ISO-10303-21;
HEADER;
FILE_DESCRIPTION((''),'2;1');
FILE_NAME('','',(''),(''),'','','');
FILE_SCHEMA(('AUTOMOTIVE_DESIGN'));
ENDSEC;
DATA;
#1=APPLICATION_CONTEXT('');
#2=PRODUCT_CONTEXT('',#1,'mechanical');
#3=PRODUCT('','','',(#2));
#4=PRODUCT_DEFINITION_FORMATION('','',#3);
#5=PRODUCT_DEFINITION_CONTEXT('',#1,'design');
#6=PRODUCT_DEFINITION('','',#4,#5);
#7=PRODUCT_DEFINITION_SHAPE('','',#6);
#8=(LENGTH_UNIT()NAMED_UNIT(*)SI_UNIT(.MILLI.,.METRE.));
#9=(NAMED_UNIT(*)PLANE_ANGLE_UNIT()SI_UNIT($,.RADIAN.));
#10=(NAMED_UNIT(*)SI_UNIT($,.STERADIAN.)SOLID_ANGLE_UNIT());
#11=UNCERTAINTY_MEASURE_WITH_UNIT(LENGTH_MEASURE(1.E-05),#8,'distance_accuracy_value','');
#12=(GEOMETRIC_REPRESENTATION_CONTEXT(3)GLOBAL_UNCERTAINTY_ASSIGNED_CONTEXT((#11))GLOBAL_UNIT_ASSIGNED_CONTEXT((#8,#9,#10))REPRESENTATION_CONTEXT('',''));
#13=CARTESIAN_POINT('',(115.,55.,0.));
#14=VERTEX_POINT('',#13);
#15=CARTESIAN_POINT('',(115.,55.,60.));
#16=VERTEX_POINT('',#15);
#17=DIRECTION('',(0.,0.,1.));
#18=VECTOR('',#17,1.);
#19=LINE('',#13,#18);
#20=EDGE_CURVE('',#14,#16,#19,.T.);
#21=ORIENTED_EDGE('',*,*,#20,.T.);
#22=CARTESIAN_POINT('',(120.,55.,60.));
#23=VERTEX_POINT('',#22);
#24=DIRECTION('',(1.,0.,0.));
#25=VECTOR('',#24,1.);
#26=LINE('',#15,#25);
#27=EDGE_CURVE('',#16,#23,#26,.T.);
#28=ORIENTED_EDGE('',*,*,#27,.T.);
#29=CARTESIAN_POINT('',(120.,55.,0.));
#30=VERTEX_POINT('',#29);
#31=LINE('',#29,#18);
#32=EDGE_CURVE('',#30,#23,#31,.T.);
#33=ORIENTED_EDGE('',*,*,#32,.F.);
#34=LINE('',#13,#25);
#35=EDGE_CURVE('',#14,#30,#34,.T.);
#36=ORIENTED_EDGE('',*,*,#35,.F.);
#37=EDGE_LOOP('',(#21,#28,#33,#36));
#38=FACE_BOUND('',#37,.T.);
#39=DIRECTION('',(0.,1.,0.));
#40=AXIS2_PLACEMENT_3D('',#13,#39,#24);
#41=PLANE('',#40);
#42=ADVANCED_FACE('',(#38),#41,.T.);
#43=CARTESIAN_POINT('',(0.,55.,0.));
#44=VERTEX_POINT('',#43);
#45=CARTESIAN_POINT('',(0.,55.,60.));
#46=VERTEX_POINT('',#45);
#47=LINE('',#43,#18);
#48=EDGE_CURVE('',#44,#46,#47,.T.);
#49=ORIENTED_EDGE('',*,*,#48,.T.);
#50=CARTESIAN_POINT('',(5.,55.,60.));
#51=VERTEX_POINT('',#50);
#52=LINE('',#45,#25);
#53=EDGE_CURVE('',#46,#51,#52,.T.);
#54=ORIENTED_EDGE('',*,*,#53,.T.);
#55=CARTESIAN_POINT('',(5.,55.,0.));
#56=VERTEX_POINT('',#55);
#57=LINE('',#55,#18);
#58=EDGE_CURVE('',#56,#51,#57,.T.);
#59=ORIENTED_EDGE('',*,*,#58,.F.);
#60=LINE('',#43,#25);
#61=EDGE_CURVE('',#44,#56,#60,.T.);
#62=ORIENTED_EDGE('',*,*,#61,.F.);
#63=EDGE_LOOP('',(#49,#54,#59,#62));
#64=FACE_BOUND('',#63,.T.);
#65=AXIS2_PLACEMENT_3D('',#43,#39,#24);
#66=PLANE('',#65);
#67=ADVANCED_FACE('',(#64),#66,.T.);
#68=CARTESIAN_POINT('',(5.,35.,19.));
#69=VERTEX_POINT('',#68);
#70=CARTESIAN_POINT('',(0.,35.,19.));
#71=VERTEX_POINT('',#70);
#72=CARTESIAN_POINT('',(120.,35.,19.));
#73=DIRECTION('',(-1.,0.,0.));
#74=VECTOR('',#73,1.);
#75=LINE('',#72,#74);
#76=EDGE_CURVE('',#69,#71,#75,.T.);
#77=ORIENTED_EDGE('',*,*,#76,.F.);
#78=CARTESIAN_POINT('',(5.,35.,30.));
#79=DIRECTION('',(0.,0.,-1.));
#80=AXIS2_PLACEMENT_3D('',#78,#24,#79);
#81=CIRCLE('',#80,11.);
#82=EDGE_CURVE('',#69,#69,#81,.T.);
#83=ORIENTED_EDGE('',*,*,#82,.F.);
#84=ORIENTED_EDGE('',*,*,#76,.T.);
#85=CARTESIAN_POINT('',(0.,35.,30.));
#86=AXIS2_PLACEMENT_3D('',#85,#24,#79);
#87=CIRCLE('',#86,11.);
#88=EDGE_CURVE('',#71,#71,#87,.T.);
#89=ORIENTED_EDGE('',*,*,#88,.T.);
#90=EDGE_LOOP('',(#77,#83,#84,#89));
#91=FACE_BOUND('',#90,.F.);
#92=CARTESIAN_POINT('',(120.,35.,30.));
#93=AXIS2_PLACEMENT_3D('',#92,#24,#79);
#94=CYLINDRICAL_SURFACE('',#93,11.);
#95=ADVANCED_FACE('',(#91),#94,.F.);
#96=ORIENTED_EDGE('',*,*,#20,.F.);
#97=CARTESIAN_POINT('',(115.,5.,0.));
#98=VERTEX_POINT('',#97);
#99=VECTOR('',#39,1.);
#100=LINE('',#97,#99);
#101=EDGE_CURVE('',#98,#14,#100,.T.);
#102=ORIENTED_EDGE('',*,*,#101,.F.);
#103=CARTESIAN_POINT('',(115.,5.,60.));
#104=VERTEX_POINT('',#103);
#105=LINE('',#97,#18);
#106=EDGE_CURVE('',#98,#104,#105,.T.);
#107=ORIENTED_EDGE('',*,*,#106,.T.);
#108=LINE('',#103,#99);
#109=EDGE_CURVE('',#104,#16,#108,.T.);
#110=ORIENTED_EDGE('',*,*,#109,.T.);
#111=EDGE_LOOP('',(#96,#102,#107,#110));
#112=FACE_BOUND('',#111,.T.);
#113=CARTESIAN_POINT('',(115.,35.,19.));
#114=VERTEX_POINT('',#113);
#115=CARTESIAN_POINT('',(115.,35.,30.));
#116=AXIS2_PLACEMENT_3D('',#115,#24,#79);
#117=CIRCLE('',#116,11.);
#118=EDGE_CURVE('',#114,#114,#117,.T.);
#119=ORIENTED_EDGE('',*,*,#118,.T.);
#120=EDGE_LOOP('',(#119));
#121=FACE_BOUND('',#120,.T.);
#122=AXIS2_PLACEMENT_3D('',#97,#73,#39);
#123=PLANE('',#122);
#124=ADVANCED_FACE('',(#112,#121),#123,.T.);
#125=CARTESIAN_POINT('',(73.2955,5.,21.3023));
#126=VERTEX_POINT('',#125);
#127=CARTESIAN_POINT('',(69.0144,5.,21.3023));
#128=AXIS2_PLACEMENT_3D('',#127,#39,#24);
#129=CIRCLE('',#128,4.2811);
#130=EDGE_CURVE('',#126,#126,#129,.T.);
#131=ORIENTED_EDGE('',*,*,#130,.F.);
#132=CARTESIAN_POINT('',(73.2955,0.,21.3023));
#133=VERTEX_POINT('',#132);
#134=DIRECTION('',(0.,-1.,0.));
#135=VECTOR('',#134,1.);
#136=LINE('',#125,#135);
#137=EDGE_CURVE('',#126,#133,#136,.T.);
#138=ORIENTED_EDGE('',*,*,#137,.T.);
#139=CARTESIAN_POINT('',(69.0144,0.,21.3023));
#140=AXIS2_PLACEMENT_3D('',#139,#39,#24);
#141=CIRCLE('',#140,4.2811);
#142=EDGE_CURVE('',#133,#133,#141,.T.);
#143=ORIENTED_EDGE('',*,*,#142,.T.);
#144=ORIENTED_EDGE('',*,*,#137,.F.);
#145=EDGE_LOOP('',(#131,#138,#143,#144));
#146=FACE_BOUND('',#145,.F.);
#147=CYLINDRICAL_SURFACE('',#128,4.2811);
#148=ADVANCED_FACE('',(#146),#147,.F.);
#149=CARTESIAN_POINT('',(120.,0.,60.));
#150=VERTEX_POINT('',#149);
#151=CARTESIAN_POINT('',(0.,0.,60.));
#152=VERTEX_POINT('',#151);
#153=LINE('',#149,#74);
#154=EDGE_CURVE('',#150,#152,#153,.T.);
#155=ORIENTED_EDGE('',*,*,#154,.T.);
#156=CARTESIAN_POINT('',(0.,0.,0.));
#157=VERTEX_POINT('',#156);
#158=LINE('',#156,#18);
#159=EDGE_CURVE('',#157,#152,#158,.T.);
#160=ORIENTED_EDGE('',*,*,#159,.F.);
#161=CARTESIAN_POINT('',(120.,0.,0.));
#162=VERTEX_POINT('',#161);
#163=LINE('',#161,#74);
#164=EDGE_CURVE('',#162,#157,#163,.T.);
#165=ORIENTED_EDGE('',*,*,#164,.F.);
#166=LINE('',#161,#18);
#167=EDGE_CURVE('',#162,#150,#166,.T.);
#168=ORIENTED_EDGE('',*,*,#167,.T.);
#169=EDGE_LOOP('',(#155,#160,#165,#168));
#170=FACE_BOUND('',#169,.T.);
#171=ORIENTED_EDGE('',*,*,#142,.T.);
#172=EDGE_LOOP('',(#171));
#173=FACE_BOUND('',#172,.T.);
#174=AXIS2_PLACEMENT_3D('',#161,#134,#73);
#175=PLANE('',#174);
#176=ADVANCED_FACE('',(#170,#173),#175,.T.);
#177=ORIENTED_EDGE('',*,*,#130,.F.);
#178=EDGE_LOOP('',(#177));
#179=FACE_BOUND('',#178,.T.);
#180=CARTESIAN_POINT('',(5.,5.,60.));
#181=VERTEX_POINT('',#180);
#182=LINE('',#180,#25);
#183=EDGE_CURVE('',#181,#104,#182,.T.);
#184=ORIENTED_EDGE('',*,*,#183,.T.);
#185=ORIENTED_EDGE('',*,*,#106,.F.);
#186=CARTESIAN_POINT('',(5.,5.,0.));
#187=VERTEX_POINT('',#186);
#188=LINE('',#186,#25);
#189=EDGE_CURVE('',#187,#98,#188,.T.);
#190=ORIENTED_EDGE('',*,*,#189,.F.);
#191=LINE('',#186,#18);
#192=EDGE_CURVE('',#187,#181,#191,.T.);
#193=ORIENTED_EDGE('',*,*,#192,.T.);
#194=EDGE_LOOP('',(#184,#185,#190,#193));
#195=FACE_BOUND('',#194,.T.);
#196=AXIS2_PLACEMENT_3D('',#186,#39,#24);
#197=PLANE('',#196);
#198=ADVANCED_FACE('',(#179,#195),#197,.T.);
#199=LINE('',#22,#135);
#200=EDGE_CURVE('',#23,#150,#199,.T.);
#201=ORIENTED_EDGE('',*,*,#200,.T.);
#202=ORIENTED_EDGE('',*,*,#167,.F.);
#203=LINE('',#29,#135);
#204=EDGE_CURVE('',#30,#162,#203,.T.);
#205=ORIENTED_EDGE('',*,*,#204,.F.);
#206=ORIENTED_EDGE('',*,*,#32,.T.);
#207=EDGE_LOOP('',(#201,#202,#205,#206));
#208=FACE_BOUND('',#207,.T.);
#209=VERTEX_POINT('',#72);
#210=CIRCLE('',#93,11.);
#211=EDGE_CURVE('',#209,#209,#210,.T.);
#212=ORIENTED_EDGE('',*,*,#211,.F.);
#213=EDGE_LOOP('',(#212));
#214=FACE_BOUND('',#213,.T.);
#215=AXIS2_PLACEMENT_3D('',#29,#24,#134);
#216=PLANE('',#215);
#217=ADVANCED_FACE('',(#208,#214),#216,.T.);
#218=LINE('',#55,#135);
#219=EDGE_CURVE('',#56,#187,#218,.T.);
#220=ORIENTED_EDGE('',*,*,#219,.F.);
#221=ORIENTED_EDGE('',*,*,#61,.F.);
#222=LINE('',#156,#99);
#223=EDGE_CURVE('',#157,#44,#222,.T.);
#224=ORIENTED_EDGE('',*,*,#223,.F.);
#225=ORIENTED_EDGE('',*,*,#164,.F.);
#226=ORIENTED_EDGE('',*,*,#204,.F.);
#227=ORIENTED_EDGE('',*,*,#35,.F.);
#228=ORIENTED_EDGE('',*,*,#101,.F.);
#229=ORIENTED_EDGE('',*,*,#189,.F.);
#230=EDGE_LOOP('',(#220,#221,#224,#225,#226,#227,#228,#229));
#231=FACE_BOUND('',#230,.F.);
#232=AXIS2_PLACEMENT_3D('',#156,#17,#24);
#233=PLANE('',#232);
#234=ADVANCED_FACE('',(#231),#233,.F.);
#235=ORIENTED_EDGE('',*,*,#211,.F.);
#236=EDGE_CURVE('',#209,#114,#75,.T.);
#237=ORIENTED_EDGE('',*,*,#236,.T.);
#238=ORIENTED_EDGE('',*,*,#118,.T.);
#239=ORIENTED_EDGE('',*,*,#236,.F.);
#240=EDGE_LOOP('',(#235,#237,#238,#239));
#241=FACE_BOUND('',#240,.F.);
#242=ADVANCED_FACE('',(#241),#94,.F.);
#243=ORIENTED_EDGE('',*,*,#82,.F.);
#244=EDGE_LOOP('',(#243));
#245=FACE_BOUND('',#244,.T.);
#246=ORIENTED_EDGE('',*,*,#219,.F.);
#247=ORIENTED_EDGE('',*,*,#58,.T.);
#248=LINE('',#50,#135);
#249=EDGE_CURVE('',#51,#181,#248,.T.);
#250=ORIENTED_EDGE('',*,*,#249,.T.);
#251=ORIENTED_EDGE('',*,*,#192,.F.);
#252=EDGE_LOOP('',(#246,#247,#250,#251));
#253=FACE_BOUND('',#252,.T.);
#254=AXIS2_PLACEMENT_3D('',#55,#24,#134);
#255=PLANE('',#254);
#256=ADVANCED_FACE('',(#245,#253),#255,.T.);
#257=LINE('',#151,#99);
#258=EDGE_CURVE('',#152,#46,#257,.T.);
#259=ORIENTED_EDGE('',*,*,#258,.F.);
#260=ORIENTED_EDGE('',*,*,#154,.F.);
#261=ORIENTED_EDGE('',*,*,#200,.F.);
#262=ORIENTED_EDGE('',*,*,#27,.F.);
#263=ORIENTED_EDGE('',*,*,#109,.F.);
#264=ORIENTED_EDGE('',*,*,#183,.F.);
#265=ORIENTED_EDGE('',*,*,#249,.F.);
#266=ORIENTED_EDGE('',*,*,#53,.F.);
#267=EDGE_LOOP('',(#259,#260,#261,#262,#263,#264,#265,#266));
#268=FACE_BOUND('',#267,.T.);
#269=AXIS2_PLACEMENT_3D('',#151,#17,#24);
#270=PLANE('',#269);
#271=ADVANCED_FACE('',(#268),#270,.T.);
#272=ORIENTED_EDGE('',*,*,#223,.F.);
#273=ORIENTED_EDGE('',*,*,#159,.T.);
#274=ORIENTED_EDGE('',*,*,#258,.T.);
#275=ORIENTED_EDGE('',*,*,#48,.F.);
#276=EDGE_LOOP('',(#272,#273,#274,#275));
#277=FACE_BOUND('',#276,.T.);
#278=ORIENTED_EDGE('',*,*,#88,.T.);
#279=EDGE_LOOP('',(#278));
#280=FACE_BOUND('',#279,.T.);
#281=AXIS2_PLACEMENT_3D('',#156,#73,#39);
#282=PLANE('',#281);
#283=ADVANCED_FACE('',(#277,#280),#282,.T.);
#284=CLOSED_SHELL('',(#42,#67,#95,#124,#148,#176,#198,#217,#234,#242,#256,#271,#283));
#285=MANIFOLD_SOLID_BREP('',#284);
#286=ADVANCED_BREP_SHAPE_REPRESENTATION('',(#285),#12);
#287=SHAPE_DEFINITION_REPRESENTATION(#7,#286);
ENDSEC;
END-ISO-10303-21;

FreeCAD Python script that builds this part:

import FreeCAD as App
import Part
import Sketcher
from FreeCAD import Vector
Q = App.Units.Quantity

doc = App.newDocument("Part")
body = doc.addObject("PartDesign::Body", "Body")

sketch1 = body.newObject("Sketcher::SketchObject", "Sketch")
sketch1.AttachmentSupport = (doc.getObject("XY_Plane"), [""])
sketch1.MapMode = "FlatFace"
sketch1.addGeometry(Part.LineSegment(Vector(0, 55, 0), Vector(0, 0, 0)), False)
sketch1.addGeometry(Part.LineSegment(Vector(0, 0, 0), Vector(120, 0, 0)), False)
sketch1.addGeometry(Part.LineSegment(Vector(120, 0, 0), Vector(120, 55, 0)), False)
sketch1.addGeometry(Part.LineSegment(Vector(120, 55, 0), Vector(115, 55, 0)), False)
sketch1.addGeometry(Part.LineSegment(Vector(115, 55, 0), Vector(115, 5, 0)), False)
sketch1.addGeometry(Part.LineSegment(Vector(115, 5, 0), Vector(5, 5, 0)), False)
sketch1.addGeometry(Part.LineSegment(Vector(5, 5, 0), Vector(5, 55, 0)), False)
sketch1.addGeometry(Part.LineSegment(Vector(5, 55, 0), Vector(0, 55, 0)), False)
sketch1.addConstraint(Sketcher.Constraint("Coincident", 0, 2, 1, 1))
sketch1.addConstraint(Sketcher.Constraint("Coincident", 1, 2, 2, 1))
sketch1.addConstraint(Sketcher.Constraint("Coincident", 2, 2, 3, 1))
sketch1.addConstraint(Sketcher.Constraint("Coincident", 3, 2, 4, 1))
sketch1.addConstraint(Sketcher.Constraint("Coincident", 4, 2, 5, 1))
sketch1.addConstraint(Sketcher.Constraint("Coincident", 5, 2, 6, 1))
sketch1.addConstraint(Sketcher.Constraint("Coincident", 6, 2, 7, 1))
sketch1.addConstraint(Sketcher.Constraint("Coincident", 7, 2, 0, 1))
sketch1.addConstraint(Sketcher.Constraint("Vertical", 0))
sketch1.addConstraint(Sketcher.Constraint("Horizontal", 1))
sketch1.addConstraint(Sketcher.Constraint("Vertical", 2))
sketch1.addConstraint(Sketcher.Constraint("Horizontal", 3))
sketch1.addConstraint(Sketcher.Constraint("Vertical", 4))
sketch1.addConstraint(Sketcher.Constraint("Horizontal", 5))
sketch1.addConstraint(Sketcher.Constraint("Vertical", 6))
sketch1.addConstraint(Sketcher.Constraint("Horizontal", 7))
sketch1.addConstraint(Sketcher.Constraint("Coincident", 0, 2, -1, 1))
sketch1.addConstraint(Sketcher.Constraint("Horizontal", 3, 2, 6, 2))
sketch1.addConstraint(Sketcher.Constraint("Equal", 3, 7))
sketch1.addConstraint(Sketcher.Constraint("DistanceX", 1, 1, 1, 2, Q("120 mm")))
sketch1.addConstraint(Sketcher.Constraint("DistanceX", 3, 2, 3, 1, Q("5 mm")))
sketch1.addConstraint(Sketcher.Constraint("DistanceY", 4, 2, 4, 1, Q("50 mm")))
sketch1.addConstraint(Sketcher.Constraint("DistanceY", -1, 1, 4, 2, Q("5 mm")))
pad1 = body.newObject("PartDesign::Pad", "Pad")
pad1.Profile = sketch1
pad1.Length = 60

sketch2 = body.newObject("Sketcher::SketchObject", "Sketch001")
sketch2.AttachmentSupport = (doc.getObject("YZ_Plane"), [""])
sketch2.MapMode = "FlatFace"
sketch2.AttachmentOffset = App.Placement(Vector(0, 0, 120), App.Rotation())
sketch2.addGeometry(Part.Circle(Vector(35, 30, 0), Vector(0, 0, 1), 11), False)
sketch2.addConstraint(Sketcher.Constraint("Diameter", 0, Q("22 mm")))
sketch2.addConstraint(Sketcher.Constraint("DistanceX", -1, 1, 0, 3, Q("35 mm")))
sketch2.addConstraint(Sketcher.Constraint("DistanceY", -1, 1, 0, 3, Q("30 mm")))
pocket1 = body.newObject("PartDesign::Pocket", "Pocket")
pocket1.Profile = sketch2
pocket1.Type = "ThroughAll"

sketch3 = body.newObject("Sketcher::SketchObject", "Sketch002")
sketch3.AttachmentSupport = (doc.getObject("XZ_Plane"), [""])
sketch3.MapMode = "FlatFace"
sketch3.AttachmentOffset = App.Placement(Vector(0, 0, -5), App.Rotation())
sketch3.addGeometry(Part.Circle(Vector(69, 21.3, 0), Vector(0, 0, 1), 4.3), False)
sketch3.addConstraint(Sketcher.Constraint("Diameter", 0, Q("8.5622 mm")))
sketch3.addConstraint(Sketcher.Constraint("DistanceX", -1, 1, 0, 3, Q("69.0144 mm")))
sketch3.addConstraint(Sketcher.Constraint("DistanceY", -1, 1, 0, 3, Q("21.3023 mm")))
pocket2 = body.newObject("PartDesign::Pocket", "Pocket001")
pocket2.Profile = sketch3
pocket2.Type = "ThroughAll"
pocket2.Reversed = True

doc.recompute()
